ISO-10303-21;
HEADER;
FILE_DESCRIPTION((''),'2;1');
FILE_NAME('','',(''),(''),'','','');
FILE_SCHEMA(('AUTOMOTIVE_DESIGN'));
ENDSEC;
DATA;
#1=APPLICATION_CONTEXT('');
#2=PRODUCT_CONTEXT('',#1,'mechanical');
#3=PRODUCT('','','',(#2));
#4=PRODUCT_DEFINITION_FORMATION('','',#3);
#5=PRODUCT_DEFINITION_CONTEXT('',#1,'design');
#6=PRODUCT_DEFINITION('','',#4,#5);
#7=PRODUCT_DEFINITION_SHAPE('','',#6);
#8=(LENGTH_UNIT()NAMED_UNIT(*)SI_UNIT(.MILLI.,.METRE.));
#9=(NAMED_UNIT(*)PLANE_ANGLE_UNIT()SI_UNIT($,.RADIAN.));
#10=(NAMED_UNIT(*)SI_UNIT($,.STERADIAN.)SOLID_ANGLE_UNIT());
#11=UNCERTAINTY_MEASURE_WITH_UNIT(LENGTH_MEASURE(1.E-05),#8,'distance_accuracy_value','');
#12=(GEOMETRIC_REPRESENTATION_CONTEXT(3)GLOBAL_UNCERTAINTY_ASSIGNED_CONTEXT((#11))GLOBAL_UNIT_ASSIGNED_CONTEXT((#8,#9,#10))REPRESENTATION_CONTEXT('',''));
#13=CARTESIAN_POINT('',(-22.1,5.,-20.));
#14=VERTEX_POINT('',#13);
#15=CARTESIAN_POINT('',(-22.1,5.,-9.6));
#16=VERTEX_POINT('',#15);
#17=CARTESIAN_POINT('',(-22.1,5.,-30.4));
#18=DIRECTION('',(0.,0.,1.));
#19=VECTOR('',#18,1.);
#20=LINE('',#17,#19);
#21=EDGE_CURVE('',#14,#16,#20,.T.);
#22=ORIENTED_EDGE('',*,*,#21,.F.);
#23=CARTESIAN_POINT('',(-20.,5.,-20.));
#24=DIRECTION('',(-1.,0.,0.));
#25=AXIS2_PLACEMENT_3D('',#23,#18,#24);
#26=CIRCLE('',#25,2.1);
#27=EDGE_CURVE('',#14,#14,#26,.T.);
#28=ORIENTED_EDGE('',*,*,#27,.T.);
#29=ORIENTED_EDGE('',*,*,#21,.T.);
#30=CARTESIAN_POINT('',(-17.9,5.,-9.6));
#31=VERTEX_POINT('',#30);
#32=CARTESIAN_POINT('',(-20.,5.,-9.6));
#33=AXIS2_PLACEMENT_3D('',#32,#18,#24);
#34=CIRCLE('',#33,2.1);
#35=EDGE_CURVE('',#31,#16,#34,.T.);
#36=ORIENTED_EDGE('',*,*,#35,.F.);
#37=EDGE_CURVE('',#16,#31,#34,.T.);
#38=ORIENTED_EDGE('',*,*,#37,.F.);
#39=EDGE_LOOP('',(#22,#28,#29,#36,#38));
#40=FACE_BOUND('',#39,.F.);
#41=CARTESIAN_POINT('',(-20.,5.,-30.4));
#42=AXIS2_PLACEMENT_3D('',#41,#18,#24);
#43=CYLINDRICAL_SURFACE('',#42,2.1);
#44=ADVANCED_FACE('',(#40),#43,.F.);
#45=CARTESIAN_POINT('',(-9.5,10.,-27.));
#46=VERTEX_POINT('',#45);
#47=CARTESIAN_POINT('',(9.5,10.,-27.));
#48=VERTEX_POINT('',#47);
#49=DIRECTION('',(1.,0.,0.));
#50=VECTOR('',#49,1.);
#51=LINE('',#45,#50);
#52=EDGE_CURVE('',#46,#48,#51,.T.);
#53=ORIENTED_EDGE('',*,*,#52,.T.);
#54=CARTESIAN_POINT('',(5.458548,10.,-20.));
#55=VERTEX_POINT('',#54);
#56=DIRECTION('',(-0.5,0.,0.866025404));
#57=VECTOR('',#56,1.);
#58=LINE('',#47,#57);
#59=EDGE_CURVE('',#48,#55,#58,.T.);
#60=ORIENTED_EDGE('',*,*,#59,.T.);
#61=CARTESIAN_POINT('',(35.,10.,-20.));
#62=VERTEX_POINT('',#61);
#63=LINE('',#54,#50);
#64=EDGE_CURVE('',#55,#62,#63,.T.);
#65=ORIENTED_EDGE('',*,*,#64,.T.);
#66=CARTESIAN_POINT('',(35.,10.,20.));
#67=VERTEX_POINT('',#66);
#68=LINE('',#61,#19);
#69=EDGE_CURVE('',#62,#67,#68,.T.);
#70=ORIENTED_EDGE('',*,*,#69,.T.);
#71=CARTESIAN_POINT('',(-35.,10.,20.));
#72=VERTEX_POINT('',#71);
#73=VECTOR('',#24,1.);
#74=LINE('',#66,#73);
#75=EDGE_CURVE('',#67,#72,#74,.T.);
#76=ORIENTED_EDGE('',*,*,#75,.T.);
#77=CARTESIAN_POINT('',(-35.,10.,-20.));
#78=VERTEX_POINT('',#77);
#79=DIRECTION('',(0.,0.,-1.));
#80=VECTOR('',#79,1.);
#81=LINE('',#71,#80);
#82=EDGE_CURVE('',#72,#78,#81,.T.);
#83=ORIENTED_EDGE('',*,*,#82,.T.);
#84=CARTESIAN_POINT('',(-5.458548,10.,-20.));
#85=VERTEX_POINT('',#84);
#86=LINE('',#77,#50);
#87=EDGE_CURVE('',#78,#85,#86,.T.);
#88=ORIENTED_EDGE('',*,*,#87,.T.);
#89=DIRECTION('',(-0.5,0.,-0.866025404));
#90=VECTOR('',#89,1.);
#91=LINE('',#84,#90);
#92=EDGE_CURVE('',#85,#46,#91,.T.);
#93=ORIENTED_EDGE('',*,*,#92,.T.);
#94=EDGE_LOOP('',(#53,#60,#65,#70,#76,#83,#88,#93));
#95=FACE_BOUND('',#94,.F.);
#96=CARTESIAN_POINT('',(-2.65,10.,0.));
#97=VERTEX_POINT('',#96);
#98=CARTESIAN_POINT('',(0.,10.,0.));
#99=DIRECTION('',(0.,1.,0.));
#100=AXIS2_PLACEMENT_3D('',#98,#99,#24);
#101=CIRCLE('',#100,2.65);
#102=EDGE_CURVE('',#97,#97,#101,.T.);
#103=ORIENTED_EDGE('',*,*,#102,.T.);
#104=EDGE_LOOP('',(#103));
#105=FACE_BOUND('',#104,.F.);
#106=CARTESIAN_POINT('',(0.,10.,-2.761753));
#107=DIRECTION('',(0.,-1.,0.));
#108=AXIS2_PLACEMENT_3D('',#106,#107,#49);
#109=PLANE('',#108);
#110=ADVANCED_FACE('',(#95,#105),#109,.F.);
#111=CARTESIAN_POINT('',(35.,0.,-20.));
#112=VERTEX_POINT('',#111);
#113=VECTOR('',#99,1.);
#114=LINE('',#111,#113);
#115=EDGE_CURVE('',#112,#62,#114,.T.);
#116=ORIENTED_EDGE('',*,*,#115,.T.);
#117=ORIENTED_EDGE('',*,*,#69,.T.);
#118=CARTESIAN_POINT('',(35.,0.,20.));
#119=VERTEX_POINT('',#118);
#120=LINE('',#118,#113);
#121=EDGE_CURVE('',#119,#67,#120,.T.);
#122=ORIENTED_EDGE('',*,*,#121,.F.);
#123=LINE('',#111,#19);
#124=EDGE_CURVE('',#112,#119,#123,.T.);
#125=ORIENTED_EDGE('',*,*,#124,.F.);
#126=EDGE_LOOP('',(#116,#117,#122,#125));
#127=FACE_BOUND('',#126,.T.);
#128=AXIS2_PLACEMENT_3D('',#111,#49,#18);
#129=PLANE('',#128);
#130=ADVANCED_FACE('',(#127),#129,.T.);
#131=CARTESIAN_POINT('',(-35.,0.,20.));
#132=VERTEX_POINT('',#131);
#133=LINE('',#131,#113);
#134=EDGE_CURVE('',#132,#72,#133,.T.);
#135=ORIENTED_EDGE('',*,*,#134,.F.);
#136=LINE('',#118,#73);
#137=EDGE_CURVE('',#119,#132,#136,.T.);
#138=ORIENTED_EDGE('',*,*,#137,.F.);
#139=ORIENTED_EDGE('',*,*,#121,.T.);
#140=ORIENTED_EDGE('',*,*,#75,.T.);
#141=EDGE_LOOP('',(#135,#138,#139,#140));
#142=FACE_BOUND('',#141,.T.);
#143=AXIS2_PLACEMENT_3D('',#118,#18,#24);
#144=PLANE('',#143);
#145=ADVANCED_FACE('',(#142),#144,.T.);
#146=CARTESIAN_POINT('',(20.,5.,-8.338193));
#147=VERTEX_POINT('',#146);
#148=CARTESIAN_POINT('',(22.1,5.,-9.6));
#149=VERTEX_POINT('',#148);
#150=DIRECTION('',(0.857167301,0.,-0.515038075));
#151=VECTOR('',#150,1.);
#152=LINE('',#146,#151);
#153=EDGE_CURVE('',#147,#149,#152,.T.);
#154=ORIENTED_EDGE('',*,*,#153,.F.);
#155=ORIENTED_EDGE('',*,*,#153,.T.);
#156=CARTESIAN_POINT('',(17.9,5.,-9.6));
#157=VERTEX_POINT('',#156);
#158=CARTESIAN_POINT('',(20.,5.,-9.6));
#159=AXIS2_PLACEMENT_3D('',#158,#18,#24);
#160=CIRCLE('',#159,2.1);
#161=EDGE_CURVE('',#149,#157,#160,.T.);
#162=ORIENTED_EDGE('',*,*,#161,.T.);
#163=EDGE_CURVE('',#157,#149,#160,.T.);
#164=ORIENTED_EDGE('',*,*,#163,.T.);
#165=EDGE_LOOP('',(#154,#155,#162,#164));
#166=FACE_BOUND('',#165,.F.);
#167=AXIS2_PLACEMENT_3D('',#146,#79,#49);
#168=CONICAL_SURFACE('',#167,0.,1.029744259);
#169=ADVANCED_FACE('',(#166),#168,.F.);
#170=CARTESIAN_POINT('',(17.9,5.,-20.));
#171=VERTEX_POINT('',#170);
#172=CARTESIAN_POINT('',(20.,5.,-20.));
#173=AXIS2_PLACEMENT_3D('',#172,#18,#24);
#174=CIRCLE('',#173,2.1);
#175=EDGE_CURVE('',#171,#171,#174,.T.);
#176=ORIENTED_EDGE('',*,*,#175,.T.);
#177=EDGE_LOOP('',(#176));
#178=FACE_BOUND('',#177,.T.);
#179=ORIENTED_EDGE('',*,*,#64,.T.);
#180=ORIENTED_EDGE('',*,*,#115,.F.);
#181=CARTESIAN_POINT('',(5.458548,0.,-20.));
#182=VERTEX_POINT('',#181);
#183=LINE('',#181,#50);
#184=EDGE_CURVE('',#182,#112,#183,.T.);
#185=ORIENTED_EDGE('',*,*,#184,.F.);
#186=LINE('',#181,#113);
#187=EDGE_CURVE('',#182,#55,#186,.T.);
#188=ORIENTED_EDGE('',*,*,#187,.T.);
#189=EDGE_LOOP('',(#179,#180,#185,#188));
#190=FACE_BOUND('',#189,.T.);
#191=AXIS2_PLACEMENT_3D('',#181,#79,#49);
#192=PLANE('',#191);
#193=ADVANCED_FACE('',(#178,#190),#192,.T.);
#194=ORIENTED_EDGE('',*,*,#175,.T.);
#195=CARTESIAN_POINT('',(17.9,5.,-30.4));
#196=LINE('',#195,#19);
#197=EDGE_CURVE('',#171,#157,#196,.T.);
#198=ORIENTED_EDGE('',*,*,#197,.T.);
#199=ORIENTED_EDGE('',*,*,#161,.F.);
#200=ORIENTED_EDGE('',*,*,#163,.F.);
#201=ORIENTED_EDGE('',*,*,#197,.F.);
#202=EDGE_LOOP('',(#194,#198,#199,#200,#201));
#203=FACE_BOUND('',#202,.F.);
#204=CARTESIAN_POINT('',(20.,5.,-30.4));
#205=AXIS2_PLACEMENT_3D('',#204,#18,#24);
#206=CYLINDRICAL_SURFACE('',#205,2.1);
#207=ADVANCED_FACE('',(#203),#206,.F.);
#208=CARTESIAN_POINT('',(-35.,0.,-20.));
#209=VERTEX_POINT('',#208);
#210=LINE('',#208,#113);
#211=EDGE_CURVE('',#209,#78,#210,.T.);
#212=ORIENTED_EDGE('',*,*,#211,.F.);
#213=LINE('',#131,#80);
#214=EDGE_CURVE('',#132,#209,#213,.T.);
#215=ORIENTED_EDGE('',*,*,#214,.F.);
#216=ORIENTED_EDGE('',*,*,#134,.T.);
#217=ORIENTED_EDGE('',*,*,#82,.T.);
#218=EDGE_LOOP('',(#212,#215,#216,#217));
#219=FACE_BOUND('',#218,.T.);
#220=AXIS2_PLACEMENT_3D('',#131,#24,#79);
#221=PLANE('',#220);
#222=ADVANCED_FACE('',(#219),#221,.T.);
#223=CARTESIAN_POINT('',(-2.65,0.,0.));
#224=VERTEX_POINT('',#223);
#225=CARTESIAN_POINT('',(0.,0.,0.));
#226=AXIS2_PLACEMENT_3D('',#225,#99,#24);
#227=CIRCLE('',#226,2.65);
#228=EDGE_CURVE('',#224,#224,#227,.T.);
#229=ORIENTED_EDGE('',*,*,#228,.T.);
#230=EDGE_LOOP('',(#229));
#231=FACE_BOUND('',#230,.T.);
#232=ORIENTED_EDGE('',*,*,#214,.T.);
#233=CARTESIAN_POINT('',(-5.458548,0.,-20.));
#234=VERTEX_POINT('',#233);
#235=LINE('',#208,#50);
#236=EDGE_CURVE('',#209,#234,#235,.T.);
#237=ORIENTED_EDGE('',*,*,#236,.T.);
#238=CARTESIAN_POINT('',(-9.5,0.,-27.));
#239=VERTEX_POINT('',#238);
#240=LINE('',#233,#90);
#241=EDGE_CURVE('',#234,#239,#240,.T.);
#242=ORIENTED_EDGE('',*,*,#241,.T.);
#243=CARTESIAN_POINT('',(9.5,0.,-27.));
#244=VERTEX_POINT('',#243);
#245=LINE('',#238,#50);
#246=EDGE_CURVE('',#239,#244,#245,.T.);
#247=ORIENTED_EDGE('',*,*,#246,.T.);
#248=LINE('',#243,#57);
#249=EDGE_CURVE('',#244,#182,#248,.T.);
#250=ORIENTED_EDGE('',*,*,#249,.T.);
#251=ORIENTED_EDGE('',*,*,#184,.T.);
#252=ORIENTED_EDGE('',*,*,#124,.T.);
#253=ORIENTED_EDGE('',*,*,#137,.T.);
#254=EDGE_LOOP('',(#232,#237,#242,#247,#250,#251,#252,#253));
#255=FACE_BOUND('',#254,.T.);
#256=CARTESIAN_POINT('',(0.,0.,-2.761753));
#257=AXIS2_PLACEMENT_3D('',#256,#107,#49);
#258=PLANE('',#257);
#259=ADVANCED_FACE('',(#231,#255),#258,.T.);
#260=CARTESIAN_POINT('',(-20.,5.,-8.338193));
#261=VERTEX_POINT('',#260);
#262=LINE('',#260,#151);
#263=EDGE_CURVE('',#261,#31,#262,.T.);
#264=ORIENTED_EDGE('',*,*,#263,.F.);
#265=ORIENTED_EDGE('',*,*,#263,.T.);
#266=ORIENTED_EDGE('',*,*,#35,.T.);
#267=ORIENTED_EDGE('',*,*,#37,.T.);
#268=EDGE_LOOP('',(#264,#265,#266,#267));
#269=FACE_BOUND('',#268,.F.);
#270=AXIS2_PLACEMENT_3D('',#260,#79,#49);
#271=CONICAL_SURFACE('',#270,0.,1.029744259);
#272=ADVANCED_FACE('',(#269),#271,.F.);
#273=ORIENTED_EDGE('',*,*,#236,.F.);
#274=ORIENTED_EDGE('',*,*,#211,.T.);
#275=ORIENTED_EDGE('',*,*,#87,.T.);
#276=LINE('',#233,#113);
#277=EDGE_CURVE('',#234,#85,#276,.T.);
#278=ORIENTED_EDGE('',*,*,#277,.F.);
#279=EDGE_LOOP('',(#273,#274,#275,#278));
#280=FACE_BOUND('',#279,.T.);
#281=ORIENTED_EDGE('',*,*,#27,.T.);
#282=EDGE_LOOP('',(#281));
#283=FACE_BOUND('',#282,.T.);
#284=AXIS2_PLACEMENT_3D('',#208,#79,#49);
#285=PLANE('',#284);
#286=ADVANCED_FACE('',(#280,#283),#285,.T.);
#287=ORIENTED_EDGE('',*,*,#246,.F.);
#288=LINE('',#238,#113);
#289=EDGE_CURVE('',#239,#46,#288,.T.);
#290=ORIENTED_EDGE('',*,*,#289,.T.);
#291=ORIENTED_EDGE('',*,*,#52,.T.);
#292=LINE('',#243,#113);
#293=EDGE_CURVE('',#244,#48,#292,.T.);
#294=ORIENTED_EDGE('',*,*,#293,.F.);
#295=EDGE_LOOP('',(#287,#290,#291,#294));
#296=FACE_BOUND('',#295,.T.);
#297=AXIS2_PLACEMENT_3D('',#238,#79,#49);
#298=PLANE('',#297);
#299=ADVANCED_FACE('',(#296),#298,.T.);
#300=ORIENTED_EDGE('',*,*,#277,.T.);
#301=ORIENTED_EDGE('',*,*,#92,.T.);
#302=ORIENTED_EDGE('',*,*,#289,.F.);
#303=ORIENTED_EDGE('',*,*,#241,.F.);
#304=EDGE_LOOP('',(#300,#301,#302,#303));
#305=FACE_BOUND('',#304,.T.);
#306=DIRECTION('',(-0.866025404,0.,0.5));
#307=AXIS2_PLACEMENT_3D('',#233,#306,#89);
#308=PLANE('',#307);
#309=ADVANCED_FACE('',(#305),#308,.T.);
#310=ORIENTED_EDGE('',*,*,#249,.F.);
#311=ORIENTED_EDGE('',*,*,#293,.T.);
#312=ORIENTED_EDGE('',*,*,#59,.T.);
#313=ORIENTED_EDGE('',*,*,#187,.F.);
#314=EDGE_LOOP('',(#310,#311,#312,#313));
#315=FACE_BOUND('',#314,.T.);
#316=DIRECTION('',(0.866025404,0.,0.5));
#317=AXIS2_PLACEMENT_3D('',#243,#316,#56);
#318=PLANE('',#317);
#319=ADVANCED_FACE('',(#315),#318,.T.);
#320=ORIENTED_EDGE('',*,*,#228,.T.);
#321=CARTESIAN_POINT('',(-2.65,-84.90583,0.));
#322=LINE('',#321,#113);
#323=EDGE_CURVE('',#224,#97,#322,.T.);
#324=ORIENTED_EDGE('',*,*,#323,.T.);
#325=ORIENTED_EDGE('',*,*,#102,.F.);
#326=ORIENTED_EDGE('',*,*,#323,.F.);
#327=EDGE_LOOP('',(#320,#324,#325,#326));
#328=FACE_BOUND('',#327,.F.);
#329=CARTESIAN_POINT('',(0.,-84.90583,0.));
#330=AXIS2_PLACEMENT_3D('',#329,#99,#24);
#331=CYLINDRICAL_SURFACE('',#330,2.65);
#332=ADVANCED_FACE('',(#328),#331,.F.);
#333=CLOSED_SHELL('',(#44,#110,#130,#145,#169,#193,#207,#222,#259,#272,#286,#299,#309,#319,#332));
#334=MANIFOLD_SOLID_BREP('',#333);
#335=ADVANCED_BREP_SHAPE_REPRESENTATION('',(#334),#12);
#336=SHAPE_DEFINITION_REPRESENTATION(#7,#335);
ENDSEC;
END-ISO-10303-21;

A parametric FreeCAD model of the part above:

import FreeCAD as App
import Part
import Sketcher
Q = App.Units.Quantity


def add_polygon(sketch, points):
    """Adds a closed chain of lines whose ends are joined by coincident constraints."""
    first, n = sketch.GeometryCount, len(points)
    for a, b in zip(points, points[1:] + points[:1]):
        sketch.addGeometry(Part.LineSegment(App.Vector(*a, 0), App.Vector(*b, 0)), False)
    for i in range(n):
        sketch.addConstraint(Sketcher.Constraint("Coincident", first + i, 2, first + (i + 1) % n, 1))

doc = App.newDocument("Part")
body = doc.addObject("PartDesign::Body", "Body")

sketch1 = doc.addObject("Sketcher::SketchObject", "Sketch")
body.addObject(sketch1)
sketch1.AttachmentSupport = (doc.XZ_Plane, [""])
sketch1.MapMode = "FlatFace"
add_polygon(sketch1, [(35, -20), (35, 20), (-35, 20), (-35, -20), (-5.458548, -20), (-9.5, -27), (9.5, -27), (5.458548, -20)])
sketch1.addConstraint(Sketcher.Constraint("Vertical", 0))
sketch1.addConstraint(Sketcher.Constraint("Horizontal", 1))
sketch1.addConstraint(Sketcher.Constraint("Vertical", 2))
sketch1.addConstraint(Sketcher.Constraint("Horizontal", 3))
sketch1.addConstraint(Sketcher.Constraint("Horizontal", 5))
sketch1.addConstraint(Sketcher.Constraint("Horizontal", 7))
sketch1.addConstraint(Sketcher.Constraint("Symmetric", 0, 2, 2, 2, -1, 1))
sketch1.addConstraint(Sketcher.Constraint("Symmetric", 3, 2, 6, 2, -2))
sketch1.addConstraint(Sketcher.Constraint("Equal", 4, 6))
sketch1.addConstraint(Sketcher.Constraint("DistanceX", 1, 2, 1, 1, 70.0))
sketch1.addConstraint(Sketcher.Constraint("DistanceX", 5, 1, 5, 2, 19.0))
sketch1.addConstraint(Sketcher.Constraint("DistanceY", 0, 1, 0, 2, 40.0))
sketch1.addConstraint(Sketcher.Constraint("Angle", 4, Q("-120 deg")))
sketch1.addConstraint(Sketcher.Constraint("DistanceY", 4, 2, -1, 1, 27.0))
pad1 = doc.addObject("PartDesign::Pad", "Pad")
body.addObject(pad1)
pad1.Profile = sketch1
pad1.Length = 10
pad1.Reversed = True

sketch2 = doc.addObject("Sketcher::SketchObject", "Sketch001")
body.addObject(sketch2)
sketch2.AttachmentSupport = (doc.XZ_Plane, [""])
sketch2.MapMode = "FlatFace"
sketch2.addGeometry(Part.Circle(App.Vector(0, 0, 0), App.Vector(0, 0, 1), 2.65), False)
sketch2.addConstraint(Sketcher.Constraint("Coincident", 0, 3, -1, 1))
sketch2.addConstraint(Sketcher.Constraint("Diameter", 0, 5.3))
doc.recompute()
hole = doc.addObject("PartDesign::Hole", "Hole")
body.addObject(hole)
hole.Profile = sketch2
hole.ThreadType = "None"
hole.Diameter = 5.3
hole.DepthType = "ThroughAll"

sketch3 = doc.addObject("Sketcher::SketchObject", "Sketch002")
body.addObject(sketch3)
sketch3.AttachmentSupport = (doc.XY_Plane, [""])
sketch3.MapMode = "FlatFace"
sketch3.AttachmentOffset = App.Placement(App.Vector(0, 0, -20), App.Rotation())
sketch3.addGeometry(Part.Circle(App.Vector(-20, 5, 0), App.Vector(0, 0, 1), 2.1), False)
sketch3.addGeometry(Part.Circle(App.Vector(20, 5, 0), App.Vector(0, 0, 1), 2.1), False)
sketch3.addConstraint(Sketcher.Constraint("Equal", 0, 1))
sketch3.addConstraint(Sketcher.Constraint("Symmetric", 0, 3, 1, 3, -2))
sketch3.addConstraint(Sketcher.Constraint("Diameter", 0, 4.2))
sketch3.addConstraint(Sketcher.Constraint("DistanceX", 0, 3, -1, 1, 20.0))
sketch3.addConstraint(Sketcher.Constraint("DistanceY", -1, 1, 0, 3, 5.0))
doc.recompute()
hole2 = doc.addObject("PartDesign::Hole", "Hole001")
body.addObject(hole2)
hole2.Profile = sketch3
hole2.ThreadType = "None"
hole2.Diameter = 4.2
hole2.DepthType = "Dimension"
hole2.Depth = 10.4
hole2.DrillPoint = "Angled"
hole2.DrillPointAngle = 118
hole2.Reversed = True

doc.recompute()
